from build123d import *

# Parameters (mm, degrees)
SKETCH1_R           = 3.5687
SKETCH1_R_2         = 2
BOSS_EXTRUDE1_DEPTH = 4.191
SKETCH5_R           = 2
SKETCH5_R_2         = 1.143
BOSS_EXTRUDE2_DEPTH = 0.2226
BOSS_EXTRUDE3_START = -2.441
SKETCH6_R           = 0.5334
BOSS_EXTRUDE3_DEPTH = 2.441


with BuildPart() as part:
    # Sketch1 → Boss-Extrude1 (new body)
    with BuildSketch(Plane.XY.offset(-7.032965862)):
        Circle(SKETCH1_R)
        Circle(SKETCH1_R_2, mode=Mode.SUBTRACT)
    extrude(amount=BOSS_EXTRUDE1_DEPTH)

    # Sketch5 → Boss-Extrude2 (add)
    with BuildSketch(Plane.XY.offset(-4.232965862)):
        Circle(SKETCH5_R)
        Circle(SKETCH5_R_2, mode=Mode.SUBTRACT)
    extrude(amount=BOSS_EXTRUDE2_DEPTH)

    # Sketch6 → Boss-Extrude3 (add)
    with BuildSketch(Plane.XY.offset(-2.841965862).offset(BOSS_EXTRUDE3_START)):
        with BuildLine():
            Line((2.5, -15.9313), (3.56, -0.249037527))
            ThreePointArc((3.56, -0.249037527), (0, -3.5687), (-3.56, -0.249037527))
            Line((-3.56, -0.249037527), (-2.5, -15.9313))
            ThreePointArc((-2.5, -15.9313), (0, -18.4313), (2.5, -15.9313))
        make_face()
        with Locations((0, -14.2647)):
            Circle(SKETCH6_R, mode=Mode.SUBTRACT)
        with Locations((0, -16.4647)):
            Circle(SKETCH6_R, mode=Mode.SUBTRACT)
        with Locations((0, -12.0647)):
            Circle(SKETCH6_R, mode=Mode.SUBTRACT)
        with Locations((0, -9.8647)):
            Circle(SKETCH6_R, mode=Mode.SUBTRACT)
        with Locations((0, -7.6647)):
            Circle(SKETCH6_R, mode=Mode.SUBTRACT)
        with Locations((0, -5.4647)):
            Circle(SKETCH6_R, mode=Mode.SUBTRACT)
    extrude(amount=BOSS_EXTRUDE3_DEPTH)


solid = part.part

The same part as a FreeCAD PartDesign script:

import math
import FreeCAD as App
import Part
import Sketcher
Q = App.Units.Quantity

doc = App.newDocument("Part")
params = doc.addObject("Spreadsheet::Sheet", "Params")
for row, (alias, value) in enumerate([
    ("sketch1_diameter", "0.281 in"),
    ("pad1_length", "0.165 in"),
    ("sketch2_diameter", "0.09 in"),
    ("pad2_length", "0.2226 mm"),
    ("sketch3_diameter", "0.042 in"),
    ("pad3_length", "2.441 mm"),
], start=1):
    params.set(f"A{row}", alias)
    params.set(f"B{row}", "=" + value)
    params.setAlias(f"B{row}", alias)

body = doc.addObject("PartDesign::Body", "Body")

# Sketch on XY plane
sketch1 = body.newObject("Sketcher::SketchObject", "Sketch")
sketch1.AttachmentSupport = (doc.getObject("XY_Plane"), [""])
sketch1.MapMode = "FlatFace"
sketch1.AttachmentOffset = App.Placement(App.Vector(0, 0, -7.032966), App.Rotation())
sketch1.addGeometry(Part.Circle(App.Vector(0, 0, 0), App.Vector(0, 0, 1), 3.6), False)
sketch1.addGeometry(Part.Circle(App.Vector(0, 0, 0), App.Vector(0, 0, 1), 2), False)
sketch1.addConstraint(Sketcher.Constraint("Coincident", 0, 3, -1, 1))
sketch1.addConstraint(Sketcher.Constraint("Coincident", 1, 3, -1, 1))
sketch1.addConstraint(Sketcher.Constraint("Diameter", 0, Q("0.281 in")))
sketch1.addConstraint(Sketcher.Constraint("Diameter", 1, Q("4 mm")))
sketch1.setExpression("Constraints[2]", "Params.sketch1_diameter")
pad1 = body.newObject("PartDesign::Pad", "Pad")
pad1.Profile = sketch1
pad1.setExpression("Length", "Params.pad1_length")

# Sketch on XY plane
sketch2 = body.newObject("Sketcher::SketchObject", "Sketch001")
sketch2.AttachmentSupport = (doc.getObject("XY_Plane"), [""])
sketch2.MapMode = "FlatFace"
sketch2.AttachmentOffset = App.Placement(App.Vector(0, 0, -4.232966), App.Rotation())
sketch2.addGeometry(Part.Circle(App.Vector(0, 0, 0), App.Vector(0, 0, 1), 2), False)
sketch2.addGeometry(Part.Circle(App.Vector(0, 0, 0), App.Vector(0, 0, 1), 1.1), False)
sketch2.addConstraint(Sketcher.Constraint("Coincident", 0, 3, -1, 1))
sketch2.addConstraint(Sketcher.Constraint("Coincident", 1, 3, -1, 1))
sketch2.addConstraint(Sketcher.Constraint("Diameter", 1, Q("0.09 in")))
sketch2.addConstraint(Sketcher.Constraint("Diameter", 0, Q("4 mm")))
sketch2.setExpression("Constraints[2]", "Params.sketch2_diameter")
pad2 = body.newObject("PartDesign::Pad", "Pad001")
pad2.Profile = sketch2
pad2.setExpression("Length", "Params.pad2_length")

# Sketch on XY plane
sketch3 = body.newObject("Sketcher::SketchObject", "Sketch002")
sketch3.AttachmentSupport = (doc.getObject("XY_Plane"), [""])
sketch3.MapMode = "FlatFace"
sketch3.AttachmentOffset = App.Placement(App.Vector(0, 0, -5.282966), App.Rotation())
sketch3.addGeometry(Part.LineSegment(App.Vector(2.5, -15.9, 0), App.Vector(3.6, -0.2, 0)), False)
sketch3.addGeometry(Part.ArcOfCircle(Part.Circle(App.Vector(0, 0, 0), App.Vector(0, 0, 1), 3.6), math.radians(-176), math.radians(-4)), False)
sketch3.addGeometry(Part.LineSegment(App.Vector(-3.6, -0.2, 0), App.Vector(-2.5, -15.9, 0)), False)
sketch3.addGeometry(Part.ArcOfCircle(Part.Circle(App.Vector(0, -15.9, 0), App.Vector(0, 0, 1), 2.5), math.radians(180), math.radians(360)), False)
sketch3.addGeometry(Part.Circle(App.Vector(0, -16.5, 0), App.Vector(0, 0, 1), 0.5), False)
sketch3.addGeometry(Part.Circle(App.Vector(0, -14.3, 0), App.Vector(0, 0, 1), 0.5), False)
sketch3.addGeometry(Part.Circle(App.Vector(0, -12.1, 0), App.Vector(0, 0, 1), 0.5), False)
sketch3.addGeometry(Part.Circle(App.Vector(0, -9.9, 0), App.Vector(0, 0, 1), 0.5), False)
sketch3.addGeometry(Part.Circle(App.Vector(0, -7.7, 0), App.Vector(0, 0, 1), 0.5), False)
sketch3.addGeometry(Part.Circle(App.Vector(0, -5.5, 0), App.Vector(0, 0, 1), 0.5), False)
sketch3.addConstraint(Sketcher.Constraint("Coincident", 0, 2, 1, 2))
sketch3.addConstraint(Sketcher.Constraint("Coincident", 1, 1, 2, 1))
sketch3.addConstraint(Sketcher.Constraint("Coincident", 2, 2, 3, 1))
sketch3.addConstraint(Sketcher.Constraint("Coincident", 3, 2, 0, 1))
sketch3.addConstraint(Sketcher.Constraint("Coincident", 1, 3, -1, 1))
sketch3.addConstraint(Sketcher.Constraint("Equal", 4, 5))
sketch3.addConstraint(Sketcher.Constraint("Equal", 5, 6))
sketch3.addConstraint(Sketcher.Constraint("Equal", 6, 7))
sketch3.addConstraint(Sketcher.Constraint("Equal", 7, 8))
sketch3.addConstraint(Sketcher.Constraint("Equal", 8, 9))
sketch3.addConstraint(Sketcher.Constraint("Symmetric", 2, 2, 3, 2, -2))
sketch3.addConstraint(Sketcher.Constraint("PointOnObject", 4, 3, -2))
sketch3.addConstraint(Sketcher.Constraint("PointOnObject", 5, 3, -2))
sketch3.addConstraint(Sketcher.Constraint("PointOnObject", 6, 3, -2))
sketch3.addConstraint(Sketcher.Constraint("PointOnObject", 7, 3, -2))
sketch3.addConstraint(Sketcher.Constraint("PointOnObject", 8, 3, -2))
sketch3.addConstraint(Sketcher.Constraint("PointOnObject", 9, 3, -2))
sketch3.addConstraint(Sketcher.Constraint("Horizontal", 0, 2, 1, 1))
sketch3.addConstraint(Sketcher.Constraint("Horizontal", 3, 3, 2, 2))
sketch3.addConstraint(Sketcher.Constraint("Diameter", 4, Q("0.042 in")))
sketch3.addConstraint(Sketcher.Constraint("Radius", 1, Q("0.1405 in")))
sketch3.addConstraint(Sketcher.Constraint("Radius", 3, Q("2.5 mm")))
sketch3.addConstraint(Sketcher.Constraint("DistanceY", 4, 3, 3, 3, Q("0.021 in")))
sketch3.addConstraint(Sketcher.Constraint("DistanceY", 3, 3, -1, 1, Q("15.9313 mm")))
sketch3.addConstraint(Sketcher.Constraint("DistanceY", 5, 3, -1, 1, Q("14.2647 mm")))
sketch3.addConstraint(Sketcher.Constraint("DistanceY", 6, 3, -1, 1, Q("12.0647 mm")))
sketch3.addConstraint(Sketcher.Constraint("DistanceY", 7, 3, -1, 1, Q("9.8647 mm")))
sketch3.addConstraint(Sketcher.Constraint("DistanceY", 8, 3, -1, 1, Q("7.6647 mm")))
sketch3.addConstraint(Sketcher.Constraint("DistanceY", 9, 3, -1, 1, Q("5.4647 mm")))
sketch3.addConstraint(Sketcher.Constraint("DistanceX", -1, 1, 0, 2, Q("3.56 mm")))
sketch3.setExpression("Constraints[19]", "Params.sketch3_diameter")
pad3 = body.newObject("PartDesign::Pad", "Pad002")
pad3.Profile = sketch3
pad3.setExpression("Length", "Params.pad3_length")

doc.recompute()
